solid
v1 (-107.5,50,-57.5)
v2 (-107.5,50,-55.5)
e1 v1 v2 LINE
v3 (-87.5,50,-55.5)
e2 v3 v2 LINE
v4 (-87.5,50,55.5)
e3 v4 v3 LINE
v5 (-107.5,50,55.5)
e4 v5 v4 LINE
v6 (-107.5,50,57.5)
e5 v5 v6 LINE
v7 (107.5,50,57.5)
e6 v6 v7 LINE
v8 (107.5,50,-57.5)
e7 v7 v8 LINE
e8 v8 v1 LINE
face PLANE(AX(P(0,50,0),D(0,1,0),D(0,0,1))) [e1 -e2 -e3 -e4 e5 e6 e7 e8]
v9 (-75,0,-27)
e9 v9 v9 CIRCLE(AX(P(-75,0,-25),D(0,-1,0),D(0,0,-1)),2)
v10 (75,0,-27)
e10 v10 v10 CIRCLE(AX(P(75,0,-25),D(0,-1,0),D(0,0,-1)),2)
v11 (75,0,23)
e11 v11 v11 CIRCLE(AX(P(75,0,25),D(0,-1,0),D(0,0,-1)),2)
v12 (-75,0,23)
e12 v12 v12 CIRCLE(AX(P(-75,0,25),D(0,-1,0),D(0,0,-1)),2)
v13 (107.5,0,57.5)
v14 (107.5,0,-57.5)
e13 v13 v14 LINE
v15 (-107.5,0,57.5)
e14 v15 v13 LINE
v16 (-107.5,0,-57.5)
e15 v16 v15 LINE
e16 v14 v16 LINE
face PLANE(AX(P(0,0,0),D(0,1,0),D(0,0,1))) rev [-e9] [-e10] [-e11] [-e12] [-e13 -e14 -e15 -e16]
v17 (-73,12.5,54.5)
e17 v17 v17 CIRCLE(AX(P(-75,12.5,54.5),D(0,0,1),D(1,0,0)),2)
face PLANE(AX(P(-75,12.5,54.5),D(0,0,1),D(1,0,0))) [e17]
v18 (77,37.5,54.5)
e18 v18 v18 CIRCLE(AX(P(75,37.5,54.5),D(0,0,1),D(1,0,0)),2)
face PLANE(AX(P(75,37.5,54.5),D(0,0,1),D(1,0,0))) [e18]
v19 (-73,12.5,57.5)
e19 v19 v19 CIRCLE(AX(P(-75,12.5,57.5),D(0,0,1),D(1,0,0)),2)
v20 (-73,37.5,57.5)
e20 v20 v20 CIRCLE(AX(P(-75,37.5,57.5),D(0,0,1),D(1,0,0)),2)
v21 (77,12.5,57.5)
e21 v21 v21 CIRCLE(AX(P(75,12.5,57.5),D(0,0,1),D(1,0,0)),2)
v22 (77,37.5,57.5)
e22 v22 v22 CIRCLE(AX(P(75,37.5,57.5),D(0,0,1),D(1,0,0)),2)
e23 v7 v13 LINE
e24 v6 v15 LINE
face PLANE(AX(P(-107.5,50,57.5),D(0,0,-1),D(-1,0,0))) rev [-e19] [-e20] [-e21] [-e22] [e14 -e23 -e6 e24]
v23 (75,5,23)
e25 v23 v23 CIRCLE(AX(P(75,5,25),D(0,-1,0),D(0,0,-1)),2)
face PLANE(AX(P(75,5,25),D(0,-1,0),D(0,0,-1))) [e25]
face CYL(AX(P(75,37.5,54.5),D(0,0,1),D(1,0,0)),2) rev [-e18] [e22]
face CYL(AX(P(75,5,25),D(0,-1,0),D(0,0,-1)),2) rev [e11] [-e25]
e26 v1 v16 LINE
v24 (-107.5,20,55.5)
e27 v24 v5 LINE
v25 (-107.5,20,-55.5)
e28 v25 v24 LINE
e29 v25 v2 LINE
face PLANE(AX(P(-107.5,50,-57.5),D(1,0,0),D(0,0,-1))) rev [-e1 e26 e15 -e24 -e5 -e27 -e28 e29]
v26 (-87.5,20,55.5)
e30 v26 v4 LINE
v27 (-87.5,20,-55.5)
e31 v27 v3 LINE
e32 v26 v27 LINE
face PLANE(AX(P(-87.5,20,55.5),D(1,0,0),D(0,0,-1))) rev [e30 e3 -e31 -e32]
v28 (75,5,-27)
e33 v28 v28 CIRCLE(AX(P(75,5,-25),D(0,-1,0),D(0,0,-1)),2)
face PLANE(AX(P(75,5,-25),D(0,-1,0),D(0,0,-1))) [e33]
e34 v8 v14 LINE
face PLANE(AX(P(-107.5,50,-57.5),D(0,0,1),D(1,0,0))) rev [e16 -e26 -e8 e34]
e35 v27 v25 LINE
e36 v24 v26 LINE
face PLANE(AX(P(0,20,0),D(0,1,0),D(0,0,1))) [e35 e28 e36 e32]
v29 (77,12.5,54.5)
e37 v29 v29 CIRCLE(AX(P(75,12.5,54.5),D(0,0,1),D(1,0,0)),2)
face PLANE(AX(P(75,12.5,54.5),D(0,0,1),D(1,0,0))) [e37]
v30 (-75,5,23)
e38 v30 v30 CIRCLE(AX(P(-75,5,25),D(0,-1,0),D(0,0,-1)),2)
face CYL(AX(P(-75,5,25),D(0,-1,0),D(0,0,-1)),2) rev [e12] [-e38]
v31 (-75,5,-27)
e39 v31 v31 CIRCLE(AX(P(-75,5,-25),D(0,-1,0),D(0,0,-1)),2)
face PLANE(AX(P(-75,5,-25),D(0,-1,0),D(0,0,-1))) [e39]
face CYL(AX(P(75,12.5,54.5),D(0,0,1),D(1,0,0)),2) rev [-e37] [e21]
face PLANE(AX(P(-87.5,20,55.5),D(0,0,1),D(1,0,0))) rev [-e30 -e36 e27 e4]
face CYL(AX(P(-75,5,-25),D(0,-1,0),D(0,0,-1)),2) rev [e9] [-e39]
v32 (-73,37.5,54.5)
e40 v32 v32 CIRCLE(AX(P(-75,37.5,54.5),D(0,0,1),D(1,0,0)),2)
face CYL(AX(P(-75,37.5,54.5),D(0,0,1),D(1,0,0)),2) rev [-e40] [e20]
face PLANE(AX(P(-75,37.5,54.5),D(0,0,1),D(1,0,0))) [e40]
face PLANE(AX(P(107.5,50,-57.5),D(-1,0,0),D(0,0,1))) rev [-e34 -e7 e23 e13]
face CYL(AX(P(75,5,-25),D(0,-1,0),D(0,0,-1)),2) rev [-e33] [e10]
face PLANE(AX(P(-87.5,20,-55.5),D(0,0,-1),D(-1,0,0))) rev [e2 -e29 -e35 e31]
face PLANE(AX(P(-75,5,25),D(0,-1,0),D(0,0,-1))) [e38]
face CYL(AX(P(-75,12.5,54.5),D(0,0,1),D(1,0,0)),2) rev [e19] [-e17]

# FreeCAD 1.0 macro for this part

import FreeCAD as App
import Part
import Sketcher

V = App.Vector
Q = App.Units.Quantity


def add_polygon(sketch, points):
    """Adds a closed chain of lines whose ends are joined by coincident constraints."""
    first, n = sketch.GeometryCount, len(points)
    for a, b in zip(points, points[1:] + points[:1]):
        sketch.addGeometry(Part.LineSegment(App.Vector(*a, 0), App.Vector(*b, 0)), False)
    for i in range(n):
        sketch.addConstraint(Sketcher.Constraint("Coincident", first + i, 2, first + (i + 1) % n, 1))

doc = App.newDocument("Part")
body = doc.addObject("PartDesign::Body", "Body")

# Sketch on XZ plane
sketch1 = body.newObject("Sketcher::SketchObject", "Sketch")
sketch1.AttachmentSupport = (doc.getObject("XZ_Plane"), [""])
sketch1.MapMode = "FlatFace"
add_polygon(sketch1, [(-108, -58), (-108, 58), (108, 58), (108, -58)])  # lines 0-3
sketch1.addConstraint([
    Sketcher.Constraint("Vertical", 0),
    Sketcher.Constraint("Horizontal", 1),
    Sketcher.Constraint("Vertical", 2),
    Sketcher.Constraint("Horizontal", 3),
    Sketcher.Constraint("Symmetric", 0, 2, 2, 2, -1, 1),
    Sketcher.Constraint("DistanceX", 1, 1, 1, 2, Q("215 mm")),
    Sketcher.Constraint("DistanceY", 0, 1, 0, 2, Q("115 mm")),
])
pad1 = body.newObject("PartDesign::Pad", "Pad")
pad1.Profile = sketch1
pad1.Length = 50
pad1.Reversed = True

# Sketch on XZ plane
sketch2 = body.newObject("Sketcher::SketchObject", "Sketch001")
sketch2.AttachmentSupport = (doc.getObject("XZ_Plane"), [""])
sketch2.MapMode = "FlatFace"
sketch2.AttachmentOffset = App.Placement(V(0, 0, -50), App.Rotation())
add_polygon(sketch2, [(-108, -56), (-108, 56), (-88, 56), (-88, -56)])  # lines 0-3
sketch2.addConstraint([
    Sketcher.Constraint("Vertical", 0),
    Sketcher.Constraint("Horizontal", 1),
    Sketcher.Constraint("Vertical", 2),
    Sketcher.Constraint("Horizontal", 3),
    Sketcher.Constraint("DistanceX", 1, 1, 1, 2, Q("20 mm")),
    Sketcher.Constraint("DistanceY", 0, 1, 0, 2, Q("111 mm")),
    Sketcher.Constraint("DistanceX", 0, 2, -1, 1, Q("107.5 mm")),
    Sketcher.Constraint("DistanceY", -1, 1, 0, 2, Q("55.5 mm")),
])
pocket1 = body.newObject("PartDesign::Pocket", "Pocket")
pocket1.Profile = sketch2
pocket1.Length = 30
pocket1.Reversed = True

# Sketch on XZ plane
sketch3 = body.newObject("Sketcher::SketchObject", "Sketch002")
sketch3.AttachmentSupport = (doc.getObject("XZ_Plane"), [""])
sketch3.MapMode = "FlatFace"
sketch3.addGeometry([
    Part.Circle(V(-75, 25, 0), V(0, 0, 1), 2),
    Part.Circle(V(75, 25, 0), V(0, 0, 1), 2),
    Part.Circle(V(75, -25, 0), V(0, 0, 1), 2),
    Part.Circle(V(-75, -25, 0), V(0, 0, 1), 2),
], False)
sketch3.addConstraint([
    Sketcher.Constraint("Equal", 0, 1),
    Sketcher.Constraint("Equal", 1, 2),
    Sketcher.Constraint("Equal", 2, 3),
    Sketcher.Constraint("Symmetric", 0, 3, 2, 3, -1, 1),
    Sketcher.Constraint("Symmetric", 1, 3, 3, 3, -1, 1),
    Sketcher.Constraint("Symmetric", 0, 3, 1, 3, -2),
    Sketcher.Constraint("Diameter", 0, Q("4 mm")),
    Sketcher.Constraint("DistanceX", 0, 3, -1, 1, Q("75 mm")),
    Sketcher.Constraint("DistanceY", -1, 1, 0, 3, Q("25 mm")),
])
pocket2 = body.newObject("PartDesign::Pocket", "Pocket001")
pocket2.Profile = sketch3
pocket2.Length = 5

# Sketch on XY plane
sketch4 = body.newObject("Sketcher::SketchObject", "Sketch003")
sketch4.AttachmentSupport = (doc.getObject("XY_Plane"), [""])
sketch4.MapMode = "FlatFace"
sketch4.AttachmentOffset = App.Placement(V(0, 0, 57.5), App.Rotation())
sketch4.addGeometry([
    Part.Circle(V(-75, 12.5, 0), V(0, 0, 1), 2),
    Part.Circle(V(-75, 37.5, 0), V(0, 0, 1), 2),
    Part.Circle(V(75, 37.5, 0), V(0, 0, 1), 2),
    Part.Circle(V(75, 12.5, 0), V(0, 0, 1), 2),
], False)
sketch4.addConstraint([
    Sketcher.Constraint("Equal", 0, 1),
    Sketcher.Constraint("Equal", 1, 2),
    Sketcher.Constraint("Equal", 2, 3),
    Sketcher.Constraint("Symmetric", 1, 3, 2, 3, -2),
    Sketcher.Constraint("Symmetric", 0, 3, 3, 3, -2),
    Sketcher.Constraint("Vertical", 0, 3, 1, 3),
    Sketcher.Constraint("Diameter", 0, Q("4 mm")),
    Sketcher.Constraint("DistanceX", 0, 3, -1, 1, Q("75 mm")),
    Sketcher.Constraint("DistanceY", 0, 3, 1, 3, Q("25 mm")),
    Sketcher.Constraint("DistanceY", -1, 1, 0, 3, Q("12.5 mm")),
])
pocket3 = body.newObject("PartDesign::Pocket", "Pocket002")
pocket3.Profile = sketch4
pocket3.Length = 3

doc.recompute()
